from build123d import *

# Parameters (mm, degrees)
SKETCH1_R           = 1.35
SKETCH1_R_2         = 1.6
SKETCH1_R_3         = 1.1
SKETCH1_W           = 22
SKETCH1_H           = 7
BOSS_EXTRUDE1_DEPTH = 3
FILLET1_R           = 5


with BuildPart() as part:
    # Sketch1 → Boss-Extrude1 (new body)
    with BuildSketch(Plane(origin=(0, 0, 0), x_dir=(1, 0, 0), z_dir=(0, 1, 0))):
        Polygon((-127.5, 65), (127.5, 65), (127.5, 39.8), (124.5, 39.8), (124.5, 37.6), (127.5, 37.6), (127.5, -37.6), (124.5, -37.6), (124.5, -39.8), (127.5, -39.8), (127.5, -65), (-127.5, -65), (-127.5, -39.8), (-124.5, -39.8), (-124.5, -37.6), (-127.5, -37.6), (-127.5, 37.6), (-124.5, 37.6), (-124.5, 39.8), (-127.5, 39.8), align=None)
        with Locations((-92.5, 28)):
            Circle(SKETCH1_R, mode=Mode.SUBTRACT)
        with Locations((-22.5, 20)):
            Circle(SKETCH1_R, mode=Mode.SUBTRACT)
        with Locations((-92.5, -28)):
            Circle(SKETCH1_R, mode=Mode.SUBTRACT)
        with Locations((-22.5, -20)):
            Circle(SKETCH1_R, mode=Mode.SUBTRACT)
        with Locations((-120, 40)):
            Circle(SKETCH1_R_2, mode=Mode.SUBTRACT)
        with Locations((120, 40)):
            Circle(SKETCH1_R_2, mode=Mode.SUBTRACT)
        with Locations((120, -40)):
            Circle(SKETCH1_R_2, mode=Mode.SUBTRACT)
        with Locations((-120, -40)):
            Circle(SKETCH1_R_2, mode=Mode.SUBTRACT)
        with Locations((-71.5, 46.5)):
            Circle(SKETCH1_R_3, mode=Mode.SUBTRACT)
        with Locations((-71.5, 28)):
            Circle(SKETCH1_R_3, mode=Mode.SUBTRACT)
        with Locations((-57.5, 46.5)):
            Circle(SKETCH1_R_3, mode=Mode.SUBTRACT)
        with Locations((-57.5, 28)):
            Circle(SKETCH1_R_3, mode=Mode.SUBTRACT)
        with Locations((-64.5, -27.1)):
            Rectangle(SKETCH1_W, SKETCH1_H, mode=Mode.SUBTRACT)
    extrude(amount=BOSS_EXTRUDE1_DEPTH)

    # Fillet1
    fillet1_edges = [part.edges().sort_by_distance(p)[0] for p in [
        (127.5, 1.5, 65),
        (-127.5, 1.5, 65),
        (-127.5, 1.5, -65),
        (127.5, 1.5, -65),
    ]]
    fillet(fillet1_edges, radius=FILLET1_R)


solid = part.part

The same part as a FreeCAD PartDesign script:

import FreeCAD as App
import Part
import Sketcher

V = App.Vector


def edges_at(feature, points):
    """Names of the edges that pass closest to the given points."""
    edges = feature.Shape.Edges
    near = lambda p: min(range(len(edges)), key=lambda i: edges[i].distToShape(Part.Vertex(*p))[0])
    return sorted({f"Edge{near(p) + 1}" for p in points})


def add_polygon(sketch, points):
    """Adds a closed chain of lines whose ends are joined by coincident constraints."""
    first, n = sketch.GeometryCount, len(points)
    for a, b in zip(points, points[1:] + points[:1]):
        sketch.addGeometry(Part.LineSegment(App.Vector(*a, 0), App.Vector(*b, 0)), False)
    for i in range(n):
        sketch.addConstraint(Sketcher.Constraint("Coincident", first + i, 2, first + (i + 1) % n, 1))

doc = App.newDocument("Part")
body = doc.addObject("PartDesign::Body", "Body")

sketch1 = doc.addObject("Sketcher::SketchObject", "Sketch")
body.addObject(sketch1)
sketch1.AttachmentSupport = (doc.XZ_Plane, [""])
sketch1.MapMode = "FlatFace"
add_polygon(sketch1, [(127.5, -65), (-127.5, -65), (-127.5, -39.8), (-124.5, -39.8), (-124.5, -37.6), (-127.5, -37.6), (-127.5, 37.6), (-124.5, 37.6), (-124.5, 39.8), (-127.5, 39.8), (-127.5, 65), (127.5, 65), (127.5, 39.8), (124.5, 39.8), (124.5, 37.6), (127.5, 37.6), (127.5, -37.6), (124.5, -37.6), (124.5, -39.8), (127.5, -39.8)])
sketch1.addGeometry(Part.Circle(V(120, 40, 0), V(0, 0, 1), 1.6), False)
sketch1.addGeometry(Part.Circle(V(-22.5, 20, 0), V(0, 0, 1), 1.4), False)
sketch1.addGeometry(Part.Circle(V(-120, 40, 0), V(0, 0, 1), 1.6), False)
add_polygon(sketch1, [(-75.5, 30.6), (-75.5, 23.6), (-53.5, 23.6), (-53.5, 30.6)])
sketch1.addGeometry(Part.Circle(V(-92.5, 28, 0), V(0, 0, 1), 1.4), False)
sketch1.addGeometry(Part.Circle(V(120, -40, 0), V(0, 0, 1), 1.6), False)
sketch1.addGeometry(Part.Circle(V(-22.5, -20, 0), V(0, 0, 1), 1.4), False)
sketch1.addGeometry(Part.Circle(V(-57.5, -28, 0), V(0, 0, 1), 1.1), False)
sketch1.addGeometry(Part.Circle(V(-57.5, -46.5, 0), V(0, 0, 1), 1.1), False)
sketch1.addGeometry(Part.Circle(V(-71.5, -28, 0), V(0, 0, 1), 1.1), False)
sketch1.addGeometry(Part.Circle(V(-92.5, -28, 0), V(0, 0, 1), 1.4), False)
sketch1.addGeometry(Part.Circle(V(-71.5, -46.5, 0), V(0, 0, 1), 1.1), False)
sketch1.addGeometry(Part.Circle(V(-120, -40, 0), V(0, 0, 1), 1.6), False)
sketch1.addConstraint(Sketcher.Constraint("Horizontal", 0))
sketch1.addConstraint(Sketcher.Constraint("Vertical", 1))
sketch1.addConstraint(Sketcher.Constraint("Horizontal", 2))
sketch1.addConstraint(Sketcher.Constraint("Vertical", 3))
sketch1.addConstraint(Sketcher.Constraint("Horizontal", 4))
sketch1.addConstraint(Sketcher.Constraint("Vertical", 5))
sketch1.addConstraint(Sketcher.Constraint("Horizontal", 6))
sketch1.addConstraint(Sketcher.Constraint("Vertical", 7))
sketch1.addConstraint(Sketcher.Constraint("Horizontal", 8))
sketch1.addConstraint(Sketcher.Constraint("Vertical", 9))
sketch1.addConstraint(Sketcher.Constraint("Horizontal", 10))
sketch1.addConstraint(Sketcher.Constraint("Vertical", 11))
sketch1.addConstraint(Sketcher.Constraint("Horizontal", 12))
sketch1.addConstraint(Sketcher.Constraint("Vertical", 13))
sketch1.addConstraint(Sketcher.Constraint("Horizontal", 14))
sketch1.addConstraint(Sketcher.Constraint("Vertical", 15))
sketch1.addConstraint(Sketcher.Constraint("Horizontal", 16))
sketch1.addConstraint(Sketcher.Constraint("Vertical", 17))
sketch1.addConstraint(Sketcher.Constraint("Horizontal", 18))
sketch1.addConstraint(Sketcher.Constraint("Vertical", 19))
sketch1.addConstraint(Sketcher.Constraint("Vertical", 23))
sketch1.addConstraint(Sketcher.Constraint("Horizontal", 24))
sketch1.addConstraint(Sketcher.Constraint("Vertical", 25))
sketch1.addConstraint(Sketcher.Constraint("Horizontal", 26))
sketch1.addConstraint(Sketcher.Constraint("Equal", 20, 22))
sketch1.addConstraint(Sketcher.Constraint("Equal", 21, 27))
sketch1.addConstraint(Sketcher.Constraint("Equal", 22, 28))
sketch1.addConstraint(Sketcher.Constraint("Equal", 27, 29))
sketch1.addConstraint(Sketcher.Constraint("Equal", 30, 31))
sketch1.addConstraint(Sketcher.Constraint("Equal", 31, 32))
sketch1.addConstraint(Sketcher.Constraint("Equal", 29, 33))
sketch1.addConstraint(Sketcher.Constraint("Equal", 32, 34))
sketch1.addConstraint(Sketcher.Constraint("Equal", 28, 35))
sketch1.addConstraint(Sketcher.Constraint("Symmetric", 22, 3, 28, 3, -1, 1))
sketch1.addConstraint(Sketcher.Constraint("Symmetric", 20, 3, 35, 3, -1, 1))
sketch1.addConstraint(Sketcher.Constraint("Symmetric", 0, 2, 10, 2, -1, 1))
sketch1.addConstraint(Sketcher.Constraint("Symmetric", 2, 2, 12, 2, -1, 1))
sketch1.addConstraint(Sketcher.Constraint("Symmetric", 4, 2, 14, 2, -1, 1))
sketch1.addConstraint(Sketcher.Constraint("Symmetric", 6, 2, 16, 2, -1, 1))
sketch1.addConstraint(Sketcher.Constraint("Symmetric", 8, 2, 18, 2, -1, 1))
sketch1.addConstraint(Sketcher.Constraint("Symmetric", 20, 3, 22, 3, -2))
sketch1.addConstraint(Sketcher.Constraint("Symmetric", 8, 2, 11, 2, -2))
sketch1.addConstraint(Sketcher.Constraint("Symmetric", 6, 2, 13, 2, -2))
sketch1.addConstraint(Sketcher.Constraint("Symmetric", 21, 3, 29, 3, -1))
sketch1.addConstraint(Sketcher.Constraint("Symmetric", 27, 3, 33, 3, -1))
sketch1.addConstraint(Sketcher.Constraint("Horizontal", 30, 3, 32, 3))
sketch1.addConstraint(Sketcher.Constraint("Horizontal", 32, 3, 33, 3))
sketch1.addConstraint(Sketcher.Constraint("Horizontal", 31, 3, 34, 3))
sketch1.addConstraint(Sketcher.Constraint("Vertical", 30, 3, 31, 3))
sketch1.addConstraint(Sketcher.Constraint("Vertical", 32, 3, 34, 3))
sketch1.addConstraint(Sketcher.Constraint("Vertical", 1, 2, 4, 2))
sketch1.addConstraint(Sketcher.Constraint("Diameter", 20, 3.2))
sketch1.addConstraint(Sketcher.Constraint("Diameter", 21, 2.7))
sketch1.addConstraint(Sketcher.Constraint("Diameter", 30, 2.2))
sketch1.addConstraint(Sketcher.Constraint("DistanceX", 0, 2, 0, 1, 255.0))
sketch1.addConstraint(Sketcher.Constraint("DistanceX", 2, 1, 2, 2, 3.0))
sketch1.addConstraint(Sketcher.Constraint("DistanceX", 24, 1, 24, 2, 22.0))
sketch1.addConstraint(Sketcher.Constraint("DistanceY", 23, 2, 23, 1, 7.0))
sketch1.addConstraint(Sketcher.Constraint("DistanceY", 1, 1, 1, 2, 25.2))
sketch1.addConstraint(Sketcher.Constraint("DistanceY", 3, 1, 3, 2, 2.2))
sketch1.addConstraint(Sketcher.Constraint("DistanceY", 5, 1, 5, 2, 75.2))
sketch1.addConstraint(Sketcher.Constraint("DistanceX", -1, 1, 20, 3, 120.0))
sketch1.addConstraint(Sketcher.Constraint("DistanceY", -1, 1, 20, 3, 40.0))
sketch1.addConstraint(Sketcher.Constraint("DistanceY", -1, 1, 21, 3, 20.0))
sketch1.addConstraint(Sketcher.Constraint("DistanceY", -1, 1, 27, 3, 28.0))
sketch1.addConstraint(Sketcher.Constraint("DistanceX", 27, 3, 21, 3, 70.0))
sketch1.addConstraint(Sketcher.Constraint("DistanceX", 30, 3, 29, 3, 35.0))
sketch1.addConstraint(Sketcher.Constraint("DistanceX", 32, 3, 30, 3, 14.0))
sketch1.addConstraint(Sketcher.Constraint("DistanceX", 0, 2, 33, 3, 35.0))
sketch1.addConstraint(Sketcher.Constraint("DistanceX", 27, 3, 23, 2, 17.0))
sketch1.addConstraint(Sketcher.Constraint("DistanceY", 23, 2, 6, 2, 14.0))
sketch1.addConstraint(Sketcher.Constraint("DistanceY", 31, 3, -1, 1, 46.5))
pad1 = doc.addObject("PartDesign::Pad", "Pad")
body.addObject(pad1)
pad1.Profile = sketch1
pad1.Length = 3
pad1.Reversed = True
doc.recompute()

fillet = doc.addObject("PartDesign::Fillet", "Fillet")
body.addObject(fillet)
fillet.Base = (pad1, edges_at(pad1, [
    (127.5, 1.5, 65),
    (-127.5, 1.5, 65),
    (-127.5, 1.5, -65),
    (127.5, 1.5, -65),
]))
fillet.Radius = 5

doc.recompute()
